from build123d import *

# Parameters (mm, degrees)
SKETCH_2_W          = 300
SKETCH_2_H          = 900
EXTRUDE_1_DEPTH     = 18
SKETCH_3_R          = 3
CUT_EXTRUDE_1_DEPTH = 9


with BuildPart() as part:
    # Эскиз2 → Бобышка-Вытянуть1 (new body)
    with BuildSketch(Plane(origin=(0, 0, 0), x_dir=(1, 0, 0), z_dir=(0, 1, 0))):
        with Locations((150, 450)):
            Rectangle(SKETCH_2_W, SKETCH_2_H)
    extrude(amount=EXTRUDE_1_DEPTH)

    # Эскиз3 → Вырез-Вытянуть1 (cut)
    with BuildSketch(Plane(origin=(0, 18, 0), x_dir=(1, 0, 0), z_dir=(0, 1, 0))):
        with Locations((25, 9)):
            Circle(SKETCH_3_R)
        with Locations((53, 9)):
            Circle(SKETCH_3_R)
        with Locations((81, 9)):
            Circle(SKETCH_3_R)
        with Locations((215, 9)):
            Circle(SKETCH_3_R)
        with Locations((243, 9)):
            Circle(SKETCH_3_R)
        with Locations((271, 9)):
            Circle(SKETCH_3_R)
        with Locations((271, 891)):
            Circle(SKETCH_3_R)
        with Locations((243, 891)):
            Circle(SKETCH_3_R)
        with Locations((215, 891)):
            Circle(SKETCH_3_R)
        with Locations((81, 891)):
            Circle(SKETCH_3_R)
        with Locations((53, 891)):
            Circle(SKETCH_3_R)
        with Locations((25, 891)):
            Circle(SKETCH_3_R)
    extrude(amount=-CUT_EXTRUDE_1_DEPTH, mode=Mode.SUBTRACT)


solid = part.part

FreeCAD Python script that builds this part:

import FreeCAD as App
import Part
import Sketcher


def add_polygon(sketch, points):
    """Adds a closed chain of lines whose ends are joined by coincident constraints."""
    first, n = sketch.GeometryCount, len(points)
    for a, b in zip(points, points[1:] + points[:1]):
        sketch.addGeometry(Part.LineSegment(App.Vector(*a, 0), App.Vector(*b, 0)), False)
    for i in range(n):
        sketch.addConstraint(Sketcher.Constraint("Coincident", first + i, 2, first + (i + 1) % n, 1))

doc = App.newDocument("Part")
body = doc.addObject("PartDesign::Body", "Body")

sketch1 = body.newObject("Sketcher::SketchObject", "Sketch")
sketch1.AttachmentSupport = (doc.getObject("XZ_Plane"), [""])
sketch1.MapMode = "FlatFace"
add_polygon(sketch1, [(0, -900), (0, 0), (300, 0), (300, -900)])
sketch1.addConstraint([
    Sketcher.Constraint("Vertical", 0),
    Sketcher.Constraint("Horizontal", 1),
    Sketcher.Constraint("Vertical", 2),
    Sketcher.Constraint("Horizontal", 3),
    Sketcher.Constraint("Coincident", 0, 2, -1, 1),
    Sketcher.Constraint("DistanceX", 1, 1, 1, 2, 300.0),
    Sketcher.Constraint("DistanceY", 0, 1, 0, 2, 900.0),
])
pad1 = body.newObject("PartDesign::Pad", "Pad")
pad1.Profile = sketch1
pad1.Length = 18
pad1.Reversed = True

sketch2 = body.newObject("Sketcher::SketchObject", "Sketch001")
sketch2.AttachmentSupport = (doc.getObject("XZ_Plane"), [""])
sketch2.MapMode = "FlatFace"
sketch2.AttachmentOffset = App.Placement(App.Vector(0, 0, -18), App.Rotation())
sketch2.addGeometry([
    Part.Circle(App.Vector(25, -9, 0), App.Vector(0, 0, 1), 3),
    Part.Circle(App.Vector(53, -9, 0), App.Vector(0, 0, 1), 3),
    Part.Circle(App.Vector(81, -9, 0), App.Vector(0, 0, 1), 3),
    Part.Circle(App.Vector(215, -9, 0), App.Vector(0, 0, 1), 3),
    Part.Circle(App.Vector(243, -9, 0), App.Vector(0, 0, 1), 3),
    Part.Circle(App.Vector(271, -9, 0), App.Vector(0, 0, 1), 3),
    Part.Circle(App.Vector(271, -891, 0), App.Vector(0, 0, 1), 3),
    Part.Circle(App.Vector(243, -891, 0), App.Vector(0, 0, 1), 3),
    Part.Circle(App.Vector(215, -891, 0), App.Vector(0, 0, 1), 3),
    Part.Circle(App.Vector(81, -891, 0), App.Vector(0, 0, 1), 3),
    Part.Circle(App.Vector(53, -891, 0), App.Vector(0, 0, 1), 3),
    Part.Circle(App.Vector(25, -891, 0), App.Vector(0, 0, 1), 3),
], False)
sketch2.addConstraint([
    Sketcher.Constraint("Equal", 0, 1),
    Sketcher.Constraint("Equal", 1, 2),
    Sketcher.Constraint("Equal", 2, 3),
    Sketcher.Constraint("Equal", 3, 4),
    Sketcher.Constraint("Equal", 4, 5),
    Sketcher.Constraint("Equal", 5, 6),
    Sketcher.Constraint("Equal", 6, 7),
    Sketcher.Constraint("Equal", 7, 8),
    Sketcher.Constraint("Equal", 8, 9),
    Sketcher.Constraint("Equal", 9, 10),
    Sketcher.Constraint("Equal", 10, 11),
    Sketcher.Constraint("Horizontal", 0, 3, 1, 3),
    Sketcher.Constraint("Horizontal", 1, 3, 2, 3),
    Sketcher.Constraint("Horizontal", 2, 3, 3, 3),
    Sketcher.Constraint("Horizontal", 3, 3, 4, 3),
    Sketcher.Constraint("Horizontal", 4, 3, 5, 3),
    Sketcher.Constraint("Horizontal", 6, 3, 7, 3),
    Sketcher.Constraint("Horizontal", 7, 3, 8, 3),
    Sketcher.Constraint("Horizontal", 8, 3, 9, 3),
    Sketcher.Constraint("Horizontal", 9, 3, 10, 3),
    Sketcher.Constraint("Horizontal", 10, 3, 11, 3),
    Sketcher.Constraint("Vertical", 5, 3, 6, 3),
    Sketcher.Constraint("Vertical", 4, 3, 7, 3),
    Sketcher.Constraint("Vertical", 3, 3, 8, 3),
    Sketcher.Constraint("Vertical", 2, 3, 9, 3),
    Sketcher.Constraint("Vertical", 1, 3, 10, 3),
    Sketcher.Constraint("Vertical", 0, 3, 11, 3),
    Sketcher.Constraint("Diameter", 0, 6.0),
    Sketcher.Constraint("DistanceX", -1, 1, 0, 3, 25.0),
    Sketcher.Constraint("DistanceY", 0, 3, -1, 1, 9.0),
    Sketcher.Constraint("DistanceX", -1, 1, 1, 3, 53.0),
    Sketcher.Constraint("DistanceX", -1, 1, 2, 3, 81.0),
    Sketcher.Constraint("DistanceX", -1, 1, 3, 3, 215.0),
    Sketcher.Constraint("DistanceX", -1, 1, 4, 3, 243.0),
    Sketcher.Constraint("DistanceX", -1, 1, 5, 3, 271.0),
    Sketcher.Constraint("DistanceY", 6, 3, -1, 1, 891.0),
])
pocket1 = body.newObject("PartDesign::Pocket", "Pocket")
pocket1.Profile = sketch2
pocket1.Length = 9
pocket1.Reversed = True

doc.recompute()
